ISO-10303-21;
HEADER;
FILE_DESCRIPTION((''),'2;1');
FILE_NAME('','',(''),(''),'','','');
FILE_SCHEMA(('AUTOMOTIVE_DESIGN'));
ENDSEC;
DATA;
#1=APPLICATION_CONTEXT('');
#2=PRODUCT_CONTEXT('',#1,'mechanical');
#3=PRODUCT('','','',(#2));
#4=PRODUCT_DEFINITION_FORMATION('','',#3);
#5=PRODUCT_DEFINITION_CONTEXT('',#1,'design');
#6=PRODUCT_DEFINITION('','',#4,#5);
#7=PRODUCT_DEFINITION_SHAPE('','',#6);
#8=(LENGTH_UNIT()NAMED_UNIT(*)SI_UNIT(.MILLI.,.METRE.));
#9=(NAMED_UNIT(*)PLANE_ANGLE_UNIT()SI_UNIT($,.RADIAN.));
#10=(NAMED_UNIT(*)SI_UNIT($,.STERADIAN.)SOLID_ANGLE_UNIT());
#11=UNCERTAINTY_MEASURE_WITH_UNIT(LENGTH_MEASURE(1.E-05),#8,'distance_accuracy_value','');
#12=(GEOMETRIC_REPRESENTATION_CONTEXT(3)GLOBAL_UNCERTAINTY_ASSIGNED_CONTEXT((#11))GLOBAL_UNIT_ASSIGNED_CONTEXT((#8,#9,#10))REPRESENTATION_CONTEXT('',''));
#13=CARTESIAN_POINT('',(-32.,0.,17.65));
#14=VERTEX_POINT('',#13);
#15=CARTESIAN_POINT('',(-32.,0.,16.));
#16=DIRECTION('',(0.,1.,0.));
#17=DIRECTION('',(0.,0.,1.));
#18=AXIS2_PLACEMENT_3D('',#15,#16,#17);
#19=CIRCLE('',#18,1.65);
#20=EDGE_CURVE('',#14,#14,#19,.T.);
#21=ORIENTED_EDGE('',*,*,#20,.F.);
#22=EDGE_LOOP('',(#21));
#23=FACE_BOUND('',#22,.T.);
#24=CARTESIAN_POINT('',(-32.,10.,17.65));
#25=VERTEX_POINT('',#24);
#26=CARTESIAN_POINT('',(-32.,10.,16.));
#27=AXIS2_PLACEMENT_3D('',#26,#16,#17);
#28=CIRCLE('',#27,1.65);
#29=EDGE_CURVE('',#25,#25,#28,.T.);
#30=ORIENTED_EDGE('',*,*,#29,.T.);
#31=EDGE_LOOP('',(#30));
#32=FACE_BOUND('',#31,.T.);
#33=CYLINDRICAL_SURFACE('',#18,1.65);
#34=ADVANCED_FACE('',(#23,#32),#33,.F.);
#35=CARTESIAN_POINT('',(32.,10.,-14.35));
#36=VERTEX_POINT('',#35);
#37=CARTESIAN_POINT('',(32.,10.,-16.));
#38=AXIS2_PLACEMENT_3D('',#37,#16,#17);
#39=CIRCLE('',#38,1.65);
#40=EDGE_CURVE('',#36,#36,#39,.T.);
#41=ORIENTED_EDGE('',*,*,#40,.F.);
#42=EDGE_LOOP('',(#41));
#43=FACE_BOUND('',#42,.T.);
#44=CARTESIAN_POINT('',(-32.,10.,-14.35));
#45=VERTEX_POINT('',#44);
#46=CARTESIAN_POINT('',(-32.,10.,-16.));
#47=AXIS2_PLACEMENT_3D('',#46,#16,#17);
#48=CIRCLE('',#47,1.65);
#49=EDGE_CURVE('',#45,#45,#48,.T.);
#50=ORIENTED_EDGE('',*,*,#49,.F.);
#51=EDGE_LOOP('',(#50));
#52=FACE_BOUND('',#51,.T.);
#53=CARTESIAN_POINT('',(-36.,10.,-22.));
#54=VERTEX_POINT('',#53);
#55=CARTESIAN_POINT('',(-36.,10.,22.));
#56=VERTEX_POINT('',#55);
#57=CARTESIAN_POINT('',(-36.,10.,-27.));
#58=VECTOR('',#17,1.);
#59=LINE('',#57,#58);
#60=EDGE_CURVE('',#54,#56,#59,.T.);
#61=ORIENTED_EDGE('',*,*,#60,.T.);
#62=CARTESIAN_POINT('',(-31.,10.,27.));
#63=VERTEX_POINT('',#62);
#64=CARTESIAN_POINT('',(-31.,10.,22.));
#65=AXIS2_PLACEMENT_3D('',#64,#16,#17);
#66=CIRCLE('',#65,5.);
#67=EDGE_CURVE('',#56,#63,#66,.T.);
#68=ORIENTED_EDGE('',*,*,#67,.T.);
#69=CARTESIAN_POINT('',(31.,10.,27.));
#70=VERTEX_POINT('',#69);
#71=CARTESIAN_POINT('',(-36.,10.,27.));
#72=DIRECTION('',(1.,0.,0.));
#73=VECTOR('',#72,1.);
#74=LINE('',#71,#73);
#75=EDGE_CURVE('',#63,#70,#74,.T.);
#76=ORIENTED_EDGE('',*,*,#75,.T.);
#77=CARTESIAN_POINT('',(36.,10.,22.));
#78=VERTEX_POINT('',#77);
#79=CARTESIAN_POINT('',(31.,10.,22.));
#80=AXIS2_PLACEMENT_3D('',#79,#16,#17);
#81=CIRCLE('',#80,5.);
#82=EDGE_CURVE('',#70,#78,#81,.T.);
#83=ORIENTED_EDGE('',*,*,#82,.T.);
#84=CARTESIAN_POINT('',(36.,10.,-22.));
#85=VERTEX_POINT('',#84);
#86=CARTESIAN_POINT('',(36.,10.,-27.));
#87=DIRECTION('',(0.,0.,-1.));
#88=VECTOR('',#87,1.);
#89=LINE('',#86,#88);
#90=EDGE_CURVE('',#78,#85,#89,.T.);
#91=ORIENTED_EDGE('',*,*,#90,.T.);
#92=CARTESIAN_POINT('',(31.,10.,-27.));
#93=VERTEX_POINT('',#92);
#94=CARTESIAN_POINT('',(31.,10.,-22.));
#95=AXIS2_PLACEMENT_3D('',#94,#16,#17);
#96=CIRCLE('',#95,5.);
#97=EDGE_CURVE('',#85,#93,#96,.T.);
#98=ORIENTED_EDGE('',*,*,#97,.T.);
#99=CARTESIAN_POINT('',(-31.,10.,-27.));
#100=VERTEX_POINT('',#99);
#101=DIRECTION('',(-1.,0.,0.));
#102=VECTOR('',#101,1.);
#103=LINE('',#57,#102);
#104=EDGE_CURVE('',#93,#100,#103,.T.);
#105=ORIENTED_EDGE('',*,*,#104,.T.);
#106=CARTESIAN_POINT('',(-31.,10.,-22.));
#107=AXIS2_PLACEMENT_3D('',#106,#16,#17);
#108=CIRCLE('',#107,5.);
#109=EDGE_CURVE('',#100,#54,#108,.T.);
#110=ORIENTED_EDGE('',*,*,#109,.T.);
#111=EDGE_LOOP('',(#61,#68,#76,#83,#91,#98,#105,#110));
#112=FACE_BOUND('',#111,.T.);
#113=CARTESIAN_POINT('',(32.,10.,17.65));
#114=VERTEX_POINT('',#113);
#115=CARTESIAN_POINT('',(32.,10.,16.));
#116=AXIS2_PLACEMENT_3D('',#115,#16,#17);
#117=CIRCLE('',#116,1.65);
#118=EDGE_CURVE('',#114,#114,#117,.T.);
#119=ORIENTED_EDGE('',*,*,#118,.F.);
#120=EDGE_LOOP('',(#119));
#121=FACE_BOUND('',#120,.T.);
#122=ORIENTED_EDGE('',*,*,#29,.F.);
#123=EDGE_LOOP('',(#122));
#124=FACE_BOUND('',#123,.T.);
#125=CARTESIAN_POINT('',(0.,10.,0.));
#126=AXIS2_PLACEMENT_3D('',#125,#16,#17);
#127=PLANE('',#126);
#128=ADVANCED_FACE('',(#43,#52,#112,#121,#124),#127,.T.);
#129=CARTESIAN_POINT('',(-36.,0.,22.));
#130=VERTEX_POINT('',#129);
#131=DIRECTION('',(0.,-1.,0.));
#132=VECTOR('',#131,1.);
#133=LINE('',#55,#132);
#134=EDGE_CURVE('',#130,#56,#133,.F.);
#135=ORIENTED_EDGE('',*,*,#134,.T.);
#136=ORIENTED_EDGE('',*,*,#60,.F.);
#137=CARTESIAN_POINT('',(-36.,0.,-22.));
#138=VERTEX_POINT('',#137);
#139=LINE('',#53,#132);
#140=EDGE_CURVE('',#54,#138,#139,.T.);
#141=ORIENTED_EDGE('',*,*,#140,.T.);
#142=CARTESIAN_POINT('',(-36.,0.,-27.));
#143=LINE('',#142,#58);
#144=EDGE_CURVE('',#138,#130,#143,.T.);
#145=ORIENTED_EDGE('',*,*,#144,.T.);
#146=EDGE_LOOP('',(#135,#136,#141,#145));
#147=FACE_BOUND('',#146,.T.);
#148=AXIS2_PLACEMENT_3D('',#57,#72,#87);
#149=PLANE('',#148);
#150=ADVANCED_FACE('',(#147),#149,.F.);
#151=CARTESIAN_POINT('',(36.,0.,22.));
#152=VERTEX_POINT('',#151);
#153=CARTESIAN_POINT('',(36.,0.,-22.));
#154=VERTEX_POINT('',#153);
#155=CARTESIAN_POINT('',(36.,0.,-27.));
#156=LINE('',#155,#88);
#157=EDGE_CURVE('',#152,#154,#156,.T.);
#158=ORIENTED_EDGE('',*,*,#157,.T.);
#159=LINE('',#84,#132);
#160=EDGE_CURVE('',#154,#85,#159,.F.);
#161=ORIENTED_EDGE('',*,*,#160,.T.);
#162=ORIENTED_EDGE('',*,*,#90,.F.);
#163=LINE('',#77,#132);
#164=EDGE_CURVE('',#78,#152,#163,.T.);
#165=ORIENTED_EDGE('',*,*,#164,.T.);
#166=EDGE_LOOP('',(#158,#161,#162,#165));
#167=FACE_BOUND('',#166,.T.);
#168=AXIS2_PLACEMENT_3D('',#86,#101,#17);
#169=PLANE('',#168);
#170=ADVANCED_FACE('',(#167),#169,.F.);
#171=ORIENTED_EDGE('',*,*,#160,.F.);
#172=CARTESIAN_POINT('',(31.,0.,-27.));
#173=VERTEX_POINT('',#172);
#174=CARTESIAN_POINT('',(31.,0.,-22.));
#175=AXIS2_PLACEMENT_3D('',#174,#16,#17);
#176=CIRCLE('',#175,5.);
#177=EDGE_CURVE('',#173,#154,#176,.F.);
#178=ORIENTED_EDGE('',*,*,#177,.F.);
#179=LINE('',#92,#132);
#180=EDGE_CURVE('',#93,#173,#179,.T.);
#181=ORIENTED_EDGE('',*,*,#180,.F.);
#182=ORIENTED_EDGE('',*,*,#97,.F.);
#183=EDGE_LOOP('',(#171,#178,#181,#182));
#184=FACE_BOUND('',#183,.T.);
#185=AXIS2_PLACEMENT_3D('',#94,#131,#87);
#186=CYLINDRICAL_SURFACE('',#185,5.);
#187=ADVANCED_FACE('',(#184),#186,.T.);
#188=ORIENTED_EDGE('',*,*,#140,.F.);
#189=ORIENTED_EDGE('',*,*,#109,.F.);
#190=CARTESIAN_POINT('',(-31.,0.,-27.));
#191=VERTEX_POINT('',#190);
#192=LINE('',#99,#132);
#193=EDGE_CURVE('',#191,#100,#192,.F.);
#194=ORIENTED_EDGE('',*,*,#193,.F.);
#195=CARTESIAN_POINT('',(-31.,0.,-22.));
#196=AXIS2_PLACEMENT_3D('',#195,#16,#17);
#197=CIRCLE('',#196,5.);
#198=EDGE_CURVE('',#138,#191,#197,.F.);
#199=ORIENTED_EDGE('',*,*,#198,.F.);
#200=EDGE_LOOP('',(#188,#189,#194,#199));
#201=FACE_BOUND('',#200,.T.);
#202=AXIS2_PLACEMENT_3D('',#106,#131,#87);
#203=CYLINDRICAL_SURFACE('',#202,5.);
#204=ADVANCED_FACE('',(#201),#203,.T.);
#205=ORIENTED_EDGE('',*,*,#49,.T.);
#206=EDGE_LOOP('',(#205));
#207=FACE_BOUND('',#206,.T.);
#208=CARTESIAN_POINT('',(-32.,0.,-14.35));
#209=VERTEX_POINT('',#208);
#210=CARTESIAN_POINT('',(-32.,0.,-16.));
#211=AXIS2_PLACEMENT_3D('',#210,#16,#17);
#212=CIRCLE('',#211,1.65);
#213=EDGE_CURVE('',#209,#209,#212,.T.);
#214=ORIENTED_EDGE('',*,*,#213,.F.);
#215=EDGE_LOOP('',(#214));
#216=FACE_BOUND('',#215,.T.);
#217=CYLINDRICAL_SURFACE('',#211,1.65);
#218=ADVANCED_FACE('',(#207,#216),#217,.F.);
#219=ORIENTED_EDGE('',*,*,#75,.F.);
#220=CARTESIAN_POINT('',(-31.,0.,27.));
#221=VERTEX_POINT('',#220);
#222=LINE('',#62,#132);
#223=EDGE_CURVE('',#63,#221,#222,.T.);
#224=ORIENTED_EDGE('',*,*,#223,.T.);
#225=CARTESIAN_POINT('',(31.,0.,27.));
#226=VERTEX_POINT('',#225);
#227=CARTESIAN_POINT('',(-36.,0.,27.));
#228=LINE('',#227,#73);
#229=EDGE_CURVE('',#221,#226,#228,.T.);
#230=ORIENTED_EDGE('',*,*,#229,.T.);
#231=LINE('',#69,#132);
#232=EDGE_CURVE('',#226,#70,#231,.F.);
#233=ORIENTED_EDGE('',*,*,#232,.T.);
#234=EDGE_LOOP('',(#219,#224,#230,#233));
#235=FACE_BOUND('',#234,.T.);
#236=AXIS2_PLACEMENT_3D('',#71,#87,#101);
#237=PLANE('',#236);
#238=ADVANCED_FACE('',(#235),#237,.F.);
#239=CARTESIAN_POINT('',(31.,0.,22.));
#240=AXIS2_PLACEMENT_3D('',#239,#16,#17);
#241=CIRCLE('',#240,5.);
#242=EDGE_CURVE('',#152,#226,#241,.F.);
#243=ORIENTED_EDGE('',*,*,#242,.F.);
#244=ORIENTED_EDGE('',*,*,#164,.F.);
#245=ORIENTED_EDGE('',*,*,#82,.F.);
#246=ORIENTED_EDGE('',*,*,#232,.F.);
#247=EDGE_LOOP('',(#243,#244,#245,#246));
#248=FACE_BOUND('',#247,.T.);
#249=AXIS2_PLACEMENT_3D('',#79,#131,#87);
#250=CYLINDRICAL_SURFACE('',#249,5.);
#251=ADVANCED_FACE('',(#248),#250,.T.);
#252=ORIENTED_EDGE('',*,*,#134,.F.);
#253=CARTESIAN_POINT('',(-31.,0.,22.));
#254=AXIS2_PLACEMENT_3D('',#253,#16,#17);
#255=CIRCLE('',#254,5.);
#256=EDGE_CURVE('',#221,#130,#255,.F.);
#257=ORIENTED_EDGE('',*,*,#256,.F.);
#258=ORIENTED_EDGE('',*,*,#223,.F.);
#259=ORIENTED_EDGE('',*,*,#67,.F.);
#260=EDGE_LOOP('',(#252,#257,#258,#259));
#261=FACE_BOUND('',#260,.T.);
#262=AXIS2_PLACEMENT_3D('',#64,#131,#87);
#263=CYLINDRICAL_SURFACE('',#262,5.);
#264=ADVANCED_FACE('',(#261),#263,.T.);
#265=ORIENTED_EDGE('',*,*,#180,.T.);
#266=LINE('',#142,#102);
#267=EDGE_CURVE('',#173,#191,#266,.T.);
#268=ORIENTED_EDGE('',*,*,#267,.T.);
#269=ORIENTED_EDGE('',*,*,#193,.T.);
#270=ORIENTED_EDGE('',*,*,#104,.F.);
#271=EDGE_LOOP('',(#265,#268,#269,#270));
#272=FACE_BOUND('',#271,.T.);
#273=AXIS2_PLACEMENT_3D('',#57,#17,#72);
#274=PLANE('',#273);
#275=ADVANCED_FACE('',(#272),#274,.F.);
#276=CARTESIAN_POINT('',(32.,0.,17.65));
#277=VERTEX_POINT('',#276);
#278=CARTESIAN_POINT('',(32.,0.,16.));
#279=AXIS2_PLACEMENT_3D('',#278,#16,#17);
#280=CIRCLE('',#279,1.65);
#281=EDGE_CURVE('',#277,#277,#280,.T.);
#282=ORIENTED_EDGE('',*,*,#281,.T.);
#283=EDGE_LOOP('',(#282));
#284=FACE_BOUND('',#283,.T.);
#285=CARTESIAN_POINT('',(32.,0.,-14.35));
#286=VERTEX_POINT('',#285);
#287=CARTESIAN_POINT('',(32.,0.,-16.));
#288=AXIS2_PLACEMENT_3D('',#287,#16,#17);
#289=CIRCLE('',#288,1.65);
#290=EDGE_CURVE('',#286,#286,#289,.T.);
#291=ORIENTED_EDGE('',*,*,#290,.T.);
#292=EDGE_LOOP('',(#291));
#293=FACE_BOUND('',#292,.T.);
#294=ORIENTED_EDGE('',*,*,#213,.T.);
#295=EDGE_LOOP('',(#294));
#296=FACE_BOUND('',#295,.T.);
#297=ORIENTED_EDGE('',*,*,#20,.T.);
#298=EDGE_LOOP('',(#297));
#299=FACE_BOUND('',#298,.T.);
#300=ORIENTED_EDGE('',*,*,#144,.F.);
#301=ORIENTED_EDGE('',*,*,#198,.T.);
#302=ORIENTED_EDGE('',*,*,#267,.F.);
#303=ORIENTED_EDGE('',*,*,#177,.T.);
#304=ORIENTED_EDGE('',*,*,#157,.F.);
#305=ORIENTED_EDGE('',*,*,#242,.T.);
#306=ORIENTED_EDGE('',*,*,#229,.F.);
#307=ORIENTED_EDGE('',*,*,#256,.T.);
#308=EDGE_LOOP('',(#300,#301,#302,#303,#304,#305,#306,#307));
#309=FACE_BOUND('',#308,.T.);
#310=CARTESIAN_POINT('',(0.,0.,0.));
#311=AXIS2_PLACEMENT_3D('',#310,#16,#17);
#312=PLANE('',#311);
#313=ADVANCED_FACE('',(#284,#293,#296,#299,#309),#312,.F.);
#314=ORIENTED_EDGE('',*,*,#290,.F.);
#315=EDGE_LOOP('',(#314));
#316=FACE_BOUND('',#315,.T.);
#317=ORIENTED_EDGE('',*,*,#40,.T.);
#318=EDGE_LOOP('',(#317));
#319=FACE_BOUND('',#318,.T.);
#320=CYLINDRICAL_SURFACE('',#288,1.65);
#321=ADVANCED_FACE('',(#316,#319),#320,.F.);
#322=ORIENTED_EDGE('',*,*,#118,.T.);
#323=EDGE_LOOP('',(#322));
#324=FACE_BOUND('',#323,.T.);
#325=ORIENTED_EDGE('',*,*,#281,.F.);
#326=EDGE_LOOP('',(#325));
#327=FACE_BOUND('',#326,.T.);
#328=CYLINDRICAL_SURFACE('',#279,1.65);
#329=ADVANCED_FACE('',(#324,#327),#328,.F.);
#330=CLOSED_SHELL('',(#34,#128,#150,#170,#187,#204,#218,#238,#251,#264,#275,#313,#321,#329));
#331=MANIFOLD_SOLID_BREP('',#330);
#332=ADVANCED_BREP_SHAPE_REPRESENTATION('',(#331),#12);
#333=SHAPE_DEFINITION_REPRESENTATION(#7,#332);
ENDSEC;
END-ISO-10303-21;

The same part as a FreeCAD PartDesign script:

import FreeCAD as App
import Part
import Sketcher


def edges_at(feature, points):
    """Names of the edges that pass closest to the given points."""
    edges = feature.Shape.Edges
    near = lambda p: min(range(len(edges)), key=lambda i: edges[i].distToShape(Part.Vertex(*p))[0])
    return sorted({f"Edge{near(p) + 1}" for p in points})


def add_polygon(sketch, points):
    """Adds a closed chain of lines whose ends are joined by coincident constraints."""
    first, n = sketch.GeometryCount, len(points)
    for a, b in zip(points, points[1:] + points[:1]):
        sketch.addGeometry(Part.LineSegment(App.Vector(*a, 0), App.Vector(*b, 0)), False)
    for i in range(n):
        sketch.addConstraint(Sketcher.Constraint("Coincident", first + i, 2, first + (i + 1) % n, 1))

doc = App.newDocument("Part")
body = doc.addObject("PartDesign::Body", "Body")

sketch1 = doc.addObject("Sketcher::SketchObject", "Sketch")
body.addObject(sketch1)
sketch1.AttachmentSupport = (doc.XZ_Plane, [""])
sketch1.MapMode = "FlatFace"
add_polygon(sketch1, [(-36, -27), (-36, 27), (36, 27), (36, -27)])
sketch1.addConstraint(Sketcher.Constraint("Vertical", 0))
sketch1.addConstraint(Sketcher.Constraint("Horizontal", 1))
sketch1.addConstraint(Sketcher.Constraint("Vertical", 2))
sketch1.addConstraint(Sketcher.Constraint("Horizontal", 3))
sketch1.addConstraint(Sketcher.Constraint("Symmetric", 0, 2, 2, 2, -1, 1))
sketch1.addConstraint(Sketcher.Constraint("DistanceX", 1, 1, 1, 2, 72.0))
sketch1.addConstraint(Sketcher.Constraint("DistanceY", 0, 1, 0, 2, 54.0))
pad1 = doc.addObject("PartDesign::Pad", "Pad")
body.addObject(pad1)
pad1.Profile = sketch1
pad1.Length = 10
pad1.Reversed = True

sketch2 = doc.addObject("Sketcher::SketchObject", "Sketch001")
body.addObject(sketch2)
sketch2.AttachmentSupport = (doc.XZ_Plane, [""])
sketch2.MapMode = "FlatFace"
sketch2.AttachmentOffset = App.Placement(App.Vector(0, 0, -10), App.Rotation())
sketch2.addGeometry(Part.Circle(App.Vector(-32, -16, 0), App.Vector(0, 0, 1), 1.65), False)
sketch2.addGeometry(Part.Circle(App.Vector(32, -16, 0), App.Vector(0, 0, 1), 1.65), False)
sketch2.addGeometry(Part.Circle(App.Vector(32, 16, 0), App.Vector(0, 0, 1), 1.65), False)
sketch2.addGeometry(Part.Circle(App.Vector(-32, 16, 0), App.Vector(0, 0, 1), 1.65), False)
sketch2.addConstraint(Sketcher.Constraint("Equal", 0, 1))
sketch2.addConstraint(Sketcher.Constraint("Equal", 1, 2))
sketch2.addConstraint(Sketcher.Constraint("Equal", 2, 3))
sketch2.addConstraint(Sketcher.Constraint("Symmetric", 0, 3, 2, 3, -1, 1))
sketch2.addConstraint(Sketcher.Constraint("Symmetric", 1, 3, 3, 3, -1, 1))
sketch2.addConstraint(Sketcher.Constraint("Symmetric", 0, 3, 1, 3, -2))
sketch2.addConstraint(Sketcher.Constraint("Diameter", 0, 3.3))
sketch2.addConstraint(Sketcher.Constraint("DistanceX", 0, 3, -1, 1, 32.0))
sketch2.addConstraint(Sketcher.Constraint("DistanceY", 0, 3, -1, 1, 16.0))
pocket1 = doc.addObject("PartDesign::Pocket", "Pocket")
body.addObject(pocket1)
pocket1.Profile = sketch2
pocket1.Type = "ThroughAll"
pocket1.Midplane = True
doc.recompute()

fillet = doc.addObject("PartDesign::Fillet", "Fillet")
body.addObject(fillet)
fillet.Base = (pocket1, edges_at(pocket1, [
    (36, 5, 27),
    (-36, 5, 27),
    (-36, 5, -27),
    (36, 5, -27),
]))
fillet.Radius = 5

doc.recompute()
